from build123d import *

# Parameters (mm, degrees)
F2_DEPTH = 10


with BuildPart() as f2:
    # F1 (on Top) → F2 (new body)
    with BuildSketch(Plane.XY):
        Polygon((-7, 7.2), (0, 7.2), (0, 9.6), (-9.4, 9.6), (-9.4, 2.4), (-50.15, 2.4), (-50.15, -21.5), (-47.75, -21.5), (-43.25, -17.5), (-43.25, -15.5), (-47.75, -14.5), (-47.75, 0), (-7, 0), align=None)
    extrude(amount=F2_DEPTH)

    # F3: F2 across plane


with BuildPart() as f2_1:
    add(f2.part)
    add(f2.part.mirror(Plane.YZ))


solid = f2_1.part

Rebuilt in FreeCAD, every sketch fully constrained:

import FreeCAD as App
import Part
import Sketcher
from FreeCAD import Vector


def add_polygon(sketch, points):
    """Adds a closed chain of lines whose ends are joined by coincident constraints."""
    first, n = sketch.GeometryCount, len(points)
    for a, b in zip(points, points[1:] + points[:1]):
        sketch.addGeometry(Part.LineSegment(App.Vector(*a, 0), App.Vector(*b, 0)), False)
    for i in range(n):
        sketch.addConstraint(Sketcher.Constraint("Coincident", first + i, 2, first + (i + 1) % n, 1))

doc = App.newDocument("Part")
body = doc.addObject("PartDesign::Body", "Body")

# Sketch on XY plane
sketch1 = body.newObject("Sketcher::SketchObject", "Sketch")
sketch1.AttachmentSupport = (doc.getObject("XY_Plane"), [""])
sketch1.MapMode = "FlatFace"
add_polygon(sketch1, [(-7, 7.2), (0, 7.2), (0, 9.6), (-9.4, 9.6), (-9.4, 2.4), (-50.1, 2.4), (-50.1, -21.5), (-47.8, -21.5), (-43.2, -17.5), (-43.2, -15.5), (-47.8, -14.5), (-47.8, 0), (-7, 0)])  # lines 0-12
sketch1.addConstraint([
    Sketcher.Constraint("Horizontal", 0),
    Sketcher.Constraint("Vertical", 1),
    Sketcher.Constraint("Horizontal", 2),
    Sketcher.Constraint("Vertical", 3),
    Sketcher.Constraint("Horizontal", 4),
    Sketcher.Constraint("Vertical", 5),
    Sketcher.Constraint("Horizontal", 6),
    Sketcher.Constraint("Vertical", 8),
    Sketcher.Constraint("Vertical", 10),
    Sketcher.Constraint("Horizontal", 11),
    Sketcher.Constraint("Vertical", 12),
    Sketcher.Constraint("PointOnObject", 0, 2, -2),
    Sketcher.Constraint("PointOnObject", 10, 2, -1),
    Sketcher.Constraint("Vertical", 6, 2, 9, 2),
    Sketcher.Constraint("Equal", 4, 11),
    Sketcher.Constraint("Equal", 6, 1),
    Sketcher.Constraint("Equal", 3, 12),
    Sketcher.Constraint("DistanceX", 0, 1, 0, 2, 7.0),
    Sketcher.Constraint("DistanceY", 8, 1, 8, 2, 2.0),
    Sketcher.Constraint("DistanceX", 2, 2, 2, 1, 9.4),
    Sketcher.Constraint("DistanceY", 3, 2, 3, 1, 7.2),
    Sketcher.Constraint("DistanceY", 5, 2, 5, 1, 23.9),
    Sketcher.Constraint("DistanceY", 10, 1, 10, 2, 14.5),
    Sketcher.Constraint("DistanceY", 6, 2, 7, 2, 4.0),
    Sketcher.Constraint("DistanceX", 4, 2, 4, 1, 40.75),
    Sketcher.Constraint("DistanceX", 6, 2, 7, 2, 4.5),
])
pad1 = body.newObject("PartDesign::Pad", "Pad")
pad1.Profile = sketch1
pad1.Length = 10
body2 = doc.addObject("PartDesign::Body", "Body001")
doc.recompute()

body2.BaseFeature = body
doc.recompute()

mirroring = doc.addObject("Part::Mirroring", "Mirroring")
mirroring.Source = body
mirroring.Base = Vector(0, 0, 0)
mirroring.Normal = Vector(1, 0, 0)
body3 = doc.addObject("PartDesign::Body", "Body002")
body3.BaseFeature = mirroring
boolean = body2.newObject("PartDesign::Boolean", "Boolean")
boolean.Type = "Fuse"
boolean.addObjects([body3])
doc.recompute()
mirroring.Visibility = False

doc.recompute()
